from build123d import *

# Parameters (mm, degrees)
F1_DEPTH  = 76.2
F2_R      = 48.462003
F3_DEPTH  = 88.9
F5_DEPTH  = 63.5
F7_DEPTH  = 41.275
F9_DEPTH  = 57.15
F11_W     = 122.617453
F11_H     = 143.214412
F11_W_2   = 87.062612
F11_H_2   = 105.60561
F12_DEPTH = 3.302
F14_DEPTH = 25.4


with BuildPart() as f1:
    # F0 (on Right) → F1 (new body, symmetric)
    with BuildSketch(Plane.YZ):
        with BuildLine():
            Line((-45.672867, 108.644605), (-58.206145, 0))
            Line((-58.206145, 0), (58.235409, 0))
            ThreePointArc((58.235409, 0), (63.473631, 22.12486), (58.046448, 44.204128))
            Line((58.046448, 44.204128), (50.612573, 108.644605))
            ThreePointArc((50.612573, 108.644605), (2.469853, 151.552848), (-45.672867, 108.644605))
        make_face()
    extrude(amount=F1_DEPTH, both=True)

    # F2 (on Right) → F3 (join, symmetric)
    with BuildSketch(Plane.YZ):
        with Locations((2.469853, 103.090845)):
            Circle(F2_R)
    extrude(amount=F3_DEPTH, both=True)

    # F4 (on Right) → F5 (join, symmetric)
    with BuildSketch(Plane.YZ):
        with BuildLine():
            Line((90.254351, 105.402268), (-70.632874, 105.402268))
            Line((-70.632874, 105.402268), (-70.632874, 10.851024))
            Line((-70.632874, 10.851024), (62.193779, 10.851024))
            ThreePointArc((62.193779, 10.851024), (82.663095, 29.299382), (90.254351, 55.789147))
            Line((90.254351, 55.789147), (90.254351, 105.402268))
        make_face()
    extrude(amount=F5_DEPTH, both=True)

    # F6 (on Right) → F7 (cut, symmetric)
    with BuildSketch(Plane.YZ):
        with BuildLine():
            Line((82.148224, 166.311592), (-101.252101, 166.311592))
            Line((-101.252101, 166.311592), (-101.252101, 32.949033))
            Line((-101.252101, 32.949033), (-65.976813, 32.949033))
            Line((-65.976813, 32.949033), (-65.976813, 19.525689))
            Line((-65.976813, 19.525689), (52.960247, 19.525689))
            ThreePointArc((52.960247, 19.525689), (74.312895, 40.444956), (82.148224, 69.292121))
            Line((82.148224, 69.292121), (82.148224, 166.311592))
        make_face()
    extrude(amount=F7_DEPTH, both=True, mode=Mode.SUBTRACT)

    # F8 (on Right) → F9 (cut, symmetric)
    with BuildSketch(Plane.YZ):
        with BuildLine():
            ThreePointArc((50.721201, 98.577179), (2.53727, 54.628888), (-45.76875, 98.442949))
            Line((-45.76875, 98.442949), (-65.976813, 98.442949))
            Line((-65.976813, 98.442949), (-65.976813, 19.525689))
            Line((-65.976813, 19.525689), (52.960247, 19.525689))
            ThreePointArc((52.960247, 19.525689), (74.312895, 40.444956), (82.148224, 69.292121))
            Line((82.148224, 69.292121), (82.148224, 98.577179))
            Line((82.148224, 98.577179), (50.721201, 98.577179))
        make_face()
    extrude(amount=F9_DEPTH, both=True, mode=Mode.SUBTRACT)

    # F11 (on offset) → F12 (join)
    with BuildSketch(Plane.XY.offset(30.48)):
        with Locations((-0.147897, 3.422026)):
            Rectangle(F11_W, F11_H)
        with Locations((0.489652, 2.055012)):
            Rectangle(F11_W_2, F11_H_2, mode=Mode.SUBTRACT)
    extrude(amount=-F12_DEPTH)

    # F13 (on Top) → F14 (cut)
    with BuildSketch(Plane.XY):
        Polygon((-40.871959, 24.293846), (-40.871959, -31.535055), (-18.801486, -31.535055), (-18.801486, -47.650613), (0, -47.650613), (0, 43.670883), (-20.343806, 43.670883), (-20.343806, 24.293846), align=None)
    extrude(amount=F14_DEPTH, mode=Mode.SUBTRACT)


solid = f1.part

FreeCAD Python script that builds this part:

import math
import FreeCAD as App
import Part
import Sketcher
Q = App.Units.Quantity

doc = App.newDocument("Part")
body = doc.addObject("PartDesign::Body", "Body")

# Sketch on YZ plane
sketch1 = body.newObject("Sketcher::SketchObject", "Sketch")
sketch1.AttachmentSupport = (doc.getObject("YZ_Plane"), [""])
sketch1.MapMode = "FlatFace"
sketch1.addGeometry(Part.LineSegment(App.Vector(-45.672867, 108.644605, 0), App.Vector(-58.206145, 0, 0)), False)
sketch1.addGeometry(Part.LineSegment(App.Vector(-58.206145, 0, 0), App.Vector(58.235409, 0, 0)), False)
sketch1.addGeometry(Part.ArcOfCircle(Part.Circle(App.Vector(15.004872, 21.917669, 0), App.Vector(0, 0, 1), 48.469202), math.radians(-26.884783), math.radians(27.374629)), False)
sketch1.addGeometry(Part.LineSegment(App.Vector(58.046448, 44.204128, 0), App.Vector(50.612573, 108.644605, 0)), False)
sketch1.addGeometry(Part.ArcOfCircle(Part.Circle(App.Vector(2.469853, 103.090845, 0), App.Vector(0, 0, 1), 48.462003), math.radians(6.580571), math.radians(173.419429)), False)
sketch1.addConstraint(Sketcher.Constraint("Coincident", 0, 2, 1, 1))
sketch1.addConstraint(Sketcher.Constraint("Coincident", 1, 2, 2, 1))
sketch1.addConstraint(Sketcher.Constraint("Coincident", 2, 2, 3, 1))
sketch1.addConstraint(Sketcher.Constraint("Tangent", 3, 2, 4, 1))
sketch1.addConstraint(Sketcher.Constraint("Tangent", 4, 2, 0, 1))
sketch1.addConstraint(Sketcher.Constraint("Horizontal", 1))
sketch1.addConstraint(Sketcher.Constraint("PointOnObject", 0, 2, -1))
sketch1.addConstraint(Sketcher.Constraint("Horizontal", 3, 2, 4, 2))
sketch1.addConstraint(Sketcher.Constraint("Radius", 2, Q("48.469202 mm")))
sketch1.addConstraint(Sketcher.Constraint("Radius", 4, Q("48.462003 mm")))
sketch1.addConstraint(Sketcher.Constraint("DistanceX", 2, 3, 3, 2, Q("35.607701 mm")))
sketch1.addConstraint(Sketcher.Constraint("DistanceX", 1, 1, 1, 2, Q("116.441554 mm")))
sketch1.addConstraint(Sketcher.Constraint("DistanceX", -1, 1, 2, 3, Q("15.004872 mm")))
sketch1.addConstraint(Sketcher.Constraint("DistanceY", -1, 1, 2, 3, Q("21.917669 mm")))
sketch1.addConstraint(Sketcher.Constraint("DistanceX", 4, 3, 2, 3, Q("12.535019 mm")))
pad1 = body.newObject("PartDesign::Pad", "Pad")
pad1.Profile = sketch1
pad1.Length = Q("6 in")
pad1.Midplane = True

# Sketch on YZ plane
sketch2 = body.newObject("Sketcher::SketchObject", "Sketch001")
sketch2.AttachmentSupport = (doc.getObject("YZ_Plane"), [""])
sketch2.MapMode = "FlatFace"
sketch2.addGeometry(Part.Circle(App.Vector(2.469853, 103.090845, 0), App.Vector(0, 0, 1), 48.462003), False)
sketch2.addConstraint(Sketcher.Constraint("Diameter", 0, Q("96.924006 mm")))
sketch2.addConstraint(Sketcher.Constraint("DistanceX", -1, 1, 0, 3, Q("2.469853 mm")))
sketch2.addConstraint(Sketcher.Constraint("DistanceY", -1, 1, 0, 3, Q("103.090845 mm")))
pad2 = body.newObject("PartDesign::Pad", "Pad001")
pad2.Profile = sketch2
pad2.Length = Q("7 in")
pad2.Midplane = True

# Sketch on YZ plane
sketch3 = body.newObject("Sketcher::SketchObject", "Sketch002")
sketch3.AttachmentSupport = (doc.getObject("YZ_Plane"), [""])
sketch3.MapMode = "FlatFace"
sketch3.addGeometry(Part.LineSegment(App.Vector(90.254351, 105.402268, 0), App.Vector(-70.632874, 105.402268, 0)), False)
sketch3.addGeometry(Part.LineSegment(App.Vector(-70.632874, 105.402268, 0), App.Vector(-70.632874, 10.851024, 0)), False)
sketch3.addGeometry(Part.LineSegment(App.Vector(-70.632874, 10.851024, 0), App.Vector(62.193779, 10.851024, 0)), False)
sketch3.addGeometry(Part.ArcOfCircle(Part.Circle(App.Vector(40.240569, 55.789147, 0), App.Vector(0, 0, 1), 50.013782), math.radians(-63.963527), math.radians(0)), False)
sketch3.addGeometry(Part.LineSegment(App.Vector(90.254351, 55.789147, 0), App.Vector(90.254351, 105.402268, 0)), False)
sketch3.addConstraint(Sketcher.Constraint("Coincident", 0, 2, 1, 1))
sketch3.addConstraint(Sketcher.Constraint("Coincident", 1, 2, 2, 1))
sketch3.addConstraint(Sketcher.Constraint("Coincident", 2, 2, 3, 1))
sketch3.addConstraint(Sketcher.Constraint("Tangent", 3, 2, 4, 1))
sketch3.addConstraint(Sketcher.Constraint("Coincident", 4, 2, 0, 1))
sketch3.addConstraint(Sketcher.Constraint("Horizontal", 0))
sketch3.addConstraint(Sketcher.Constraint("Vertical", 1))
sketch3.addConstraint(Sketcher.Constraint("Horizontal", 2))
sketch3.addConstraint(Sketcher.Constraint("Vertical", 4))
sketch3.addConstraint(Sketcher.Constraint("Radius", 3, Q("50.013782 mm")))
sketch3.addConstraint(Sketcher.Constraint("DistanceY", 4, 1, 4, 2, Q("49.613121 mm")))
sketch3.addConstraint(Sketcher.Constraint("DistanceX", 0, 2, 0, 1, Q("160.887225 mm")))
sketch3.addConstraint(Sketcher.Constraint("DistanceX", 2, 1, 2, 2, Q("132.826653 mm")))
sketch3.addConstraint(Sketcher.Constraint("DistanceX", -1, 1, 3, 3, Q("40.240569 mm")))
sketch3.addConstraint(Sketcher.Constraint("DistanceY", -1, 1, 0, 2, Q("105.402268 mm")))
pad3 = body.newObject("PartDesign::Pad", "Pad002")
pad3.Profile = sketch3
pad3.Length = Q("5 in")
pad3.Midplane = True

# Sketch on YZ plane
sketch4 = body.newObject("Sketcher::SketchObject", "Sketch003")
sketch4.AttachmentSupport = (doc.getObject("YZ_Plane"), [""])
sketch4.MapMode = "FlatFace"
sketch4.addGeometry(Part.LineSegment(App.Vector(82.148224, 166.311592, 0), App.Vector(-101.252101, 166.311592, 0)), False)
sketch4.addGeometry(Part.LineSegment(App.Vector(-101.252101, 166.311592, 0), App.Vector(-101.252101, 32.949033, 0)), False)
sketch4.addGeometry(Part.LineSegment(App.Vector(-101.252101, 32.949033, 0), App.Vector(-65.976813, 32.949033, 0)), False)
sketch4.addGeometry(Part.LineSegment(App.Vector(-65.976813, 32.949033, 0), App.Vector(-65.976813, 19.525689, 0)), False)
sketch4.addGeometry(Part.LineSegment(App.Vector(-65.976813, 19.525689, 0), App.Vector(52.960247, 19.525689, 0)), False)
sketch4.addGeometry(Part.ArcOfCircle(Part.Circle(App.Vector(25.127556, 69.292122, 0), App.Vector(0, 0, 1), 57.020668), math.radians(-60.783184), math.radians(-0.000001)), False)
sketch4.addGeometry(Part.LineSegment(App.Vector(82.148224, 69.292121, 0), App.Vector(82.148224, 166.311592, 0)), False)
sketch4.addConstraint(Sketcher.Constraint("Coincident", 0, 2, 1, 1))
sketch4.addConstraint(Sketcher.Constraint("Coincident", 1, 2, 2, 1))
sketch4.addConstraint(Sketcher.Constraint("Coincident", 2, 2, 3, 1))
sketch4.addConstraint(Sketcher.Constraint("Coincident", 3, 2, 4, 1))
sketch4.addConstraint(Sketcher.Constraint("Coincident", 4, 2, 5, 1))
sketch4.addConstraint(Sketcher.Constraint("Tangent", 5, 2, 6, 1))
sketch4.addConstraint(Sketcher.Constraint("Coincident", 6, 2, 0, 1))
sketch4.addConstraint(Sketcher.Constraint("Horizontal", 0))
sketch4.addConstraint(Sketcher.Constraint("Vertical", 1))
sketch4.addConstraint(Sketcher.Constraint("Horizontal", 2))
sketch4.addConstraint(Sketcher.Constraint("Vertical", 3))
sketch4.addConstraint(Sketcher.Constraint("Horizontal", 4))
sketch4.addConstraint(Sketcher.Constraint("Vertical", 6))
sketch4.addConstraint(Sketcher.Constraint("Radius", 5, Q("57.020668 mm")))
sketch4.addConstraint(Sketcher.Constraint("DistanceX", 4, 1, 4, 2, Q("118.93706 mm")))
sketch4.addConstraint(Sketcher.Constraint("DistanceY", 1, 2, 1, 1, Q("133.362559 mm")))
sketch4.addConstraint(Sketcher.Constraint("DistanceY", 6, 1, 6, 2, Q("97.019471 mm")))
sketch4.addConstraint(Sketcher.Constraint("DistanceX", 0, 2, -1, 1, Q("101.252101 mm")))
sketch4.addConstraint(Sketcher.Constraint("DistanceX", 0, 2, 0, 1, Q("183.400325 mm")))
sketch4.addConstraint(Sketcher.Constraint("DistanceX", 2, 1, 2, 2, Q("35.275288 mm")))
sketch4.addConstraint(Sketcher.Constraint("DistanceY", -1, 1, 0, 2, Q("166.311592 mm")))
pocket1 = body.newObject("PartDesign::Pocket", "Pocket")
pocket1.Profile = sketch4
pocket1.Length = Q("3.25 in")
pocket1.Midplane = True

# Sketch on YZ plane
sketch5 = body.newObject("Sketcher::SketchObject", "Sketch004")
sketch5.AttachmentSupport = (doc.getObject("YZ_Plane"), [""])
sketch5.MapMode = "FlatFace"
sketch5.addGeometry(Part.ArcOfCircle(Part.Circle(App.Vector(2.469853, 103.090844, 0), App.Vector(0, 0, 1), 48.462003), math.radians(-174.496415), math.radians(-5.344173)), False)
sketch5.addGeometry(Part.LineSegment(App.Vector(-45.76875, 98.442949, 0), App.Vector(-65.976813, 98.442949, 0)), False)
sketch5.addGeometry(Part.LineSegment(App.Vector(-65.976813, 98.442949, 0), App.Vector(-65.976813, 19.525689, 0)), False)
sketch5.addGeometry(Part.LineSegment(App.Vector(-65.976813, 19.525689, 0), App.Vector(52.960247, 19.525689, 0)), False)
sketch5.addGeometry(Part.ArcOfCircle(Part.Circle(App.Vector(25.127556, 69.292122, 0), App.Vector(0, 0, 1), 57.020668), math.radians(-60.783184), math.radians(-0.000001)), False)
sketch5.addGeometry(Part.LineSegment(App.Vector(82.148224, 69.292121, 0), App.Vector(82.148224, 98.577179, 0)), False)
sketch5.addGeometry(Part.LineSegment(App.Vector(82.148224, 98.577179, 0), App.Vector(50.721201, 98.577179, 0)), False)
sketch5.addConstraint(Sketcher.Constraint("Coincident", 0, 1, 1, 1))
sketch5.addConstraint(Sketcher.Constraint("Coincident", 1, 2, 2, 1))
sketch5.addConstraint(Sketcher.Constraint("Coincident", 2, 2, 3, 1))
sketch5.addConstraint(Sketcher.Constraint("Coincident", 3, 2, 4, 1))
sketch5.addConstraint(Sketcher.Constraint("Tangent", 4, 2, 5, 1))
sketch5.addConstraint(Sketcher.Constraint("Coincident", 5, 2, 6, 1))
sketch5.addConstraint(Sketcher.Constraint("Coincident", 6, 2, 0, 2))
sketch5.addConstraint(Sketcher.Constraint("Horizontal", 1))
sketch5.addConstraint(Sketcher.Constraint("Vertical", 2))
sketch5.addConstraint(Sketcher.Constraint("Horizontal", 3))
sketch5.addConstraint(Sketcher.Constraint("Vertical", 5))
sketch5.addConstraint(Sketcher.Constraint("Horizontal", 6))
sketch5.addConstraint(Sketcher.Constraint("Radius", 0, Q("48.462003 mm")))
sketch5.addConstraint(Sketcher.Constraint("Radius", 4, Q("57.020668 mm")))
sketch5.addConstraint(Sketcher.Constraint("DistanceX", 3, 1, 3, 2, Q("118.93706 mm")))
sketch5.addConstraint(Sketcher.Constraint("DistanceY", 2, 2, 2, 1, Q("78.91726 mm")))
sketch5.addConstraint(Sketcher.Constraint("DistanceY", 5, 1, 5, 2, Q("29.285058 mm")))
sketch5.addConstraint(Sketcher.Constraint("DistanceX", -1, 1, 6, 2, Q("50.721201 mm")))
sketch5.addConstraint(Sketcher.Constraint("DistanceX", 1, 2, 1, 1, Q("20.208063 mm")))
sketch5.addConstraint(Sketcher.Constraint("DistanceX", 6, 2, 6, 1, Q("31.427023 mm")))
sketch5.addConstraint(Sketcher.Constraint("DistanceX", 0, 1, -1, 1, Q("45.76875 mm")))
sketch5.addConstraint(Sketcher.Constraint("DistanceY", -1, 1, 0, 1, Q("98.442949 mm")))
pocket2 = body.newObject("PartDesign::Pocket", "Pocket001")
pocket2.Profile = sketch5
pocket2.Length = Q("4.5 in")
pocket2.Midplane = True

# Sketch on XY plane
sketch6 = body.newObject("Sketcher::SketchObject", "Sketch005")
sketch6.AttachmentSupport = (doc.getObject("XY_Plane"), [""])
sketch6.MapMode = "FlatFace"
sketch6.AttachmentOffset = App.Placement(App.Vector(0, 0, 1.2 * 25.4), App.Rotation())
sketch6.addGeometry(Part.LineSegment(App.Vector(-61.456623, 75.029232, 0), App.Vector(-61.456623, -68.18518, 0)), False)
sketch6.addGeometry(Part.LineSegment(App.Vector(-61.456623, -68.18518, 0), App.Vector(61.160829, -68.18518, 0)), False)
sketch6.addGeometry(Part.LineSegment(App.Vector(61.160829, -68.18518, 0), App.Vector(61.160829, 75.029232, 0)), False)
sketch6.addGeometry(Part.LineSegment(App.Vector(61.160829, 75.029232, 0), App.Vector(-61.456623, 75.029232, 0)), False)
sketch6.addGeometry(Part.LineSegment(App.Vector(44.020958, -50.747793, 0), App.Vector(-43.041654, -50.747793, 0)), False)
sketch6.addGeometry(Part.LineSegment(App.Vector(-43.041654, -50.747793, 0), App.Vector(-43.041654, 54.857817, 0)), False)
sketch6.addGeometry(Part.LineSegment(App.Vector(-43.041654, 54.857817, 0), App.Vector(44.020958, 54.857817, 0)), False)
sketch6.addGeometry(Part.LineSegment(App.Vector(44.020958, 54.857817, 0), App.Vector(44.020958, -50.747793, 0)), False)
sketch6.addConstraint(Sketcher.Constraint("Coincident", 0, 2, 1, 1))
sketch6.addConstraint(Sketcher.Constraint("Coincident", 1, 2, 2, 1))
sketch6.addConstraint(Sketcher.Constraint("Coincident", 2, 2, 3, 1))
sketch6.addConstraint(Sketcher.Constraint("Coincident", 3, 2, 0, 1))
sketch6.addConstraint(Sketcher.Constraint("Coincident", 4, 2, 5, 1))
sketch6.addConstraint(Sketcher.Constraint("Coincident", 5, 2, 6, 1))
sketch6.addConstraint(Sketcher.Constraint("Coincident", 6, 2, 7, 1))
sketch6.addConstraint(Sketcher.Constraint("Coincident", 7, 2, 4, 1))
sketch6.addConstraint(Sketcher.Constraint("Vertical", 0))
sketch6.addConstraint(Sketcher.Constraint("Horizontal", 1))
sketch6.addConstraint(Sketcher.Constraint("Vertical", 2))
sketch6.addConstraint(Sketcher.Constraint("Horizontal", 3))
sketch6.addConstraint(Sketcher.Constraint("Horizontal", 4))
sketch6.addConstraint(Sketcher.Constraint("Vertical", 5))
sketch6.addConstraint(Sketcher.Constraint("Horizontal", 6))
sketch6.addConstraint(Sketcher.Constraint("Vertical", 7))
sketch6.addConstraint(Sketcher.Constraint("DistanceX", 4, 2, 4, 1, Q("87.062612 mm")))
sketch6.addConstraint(Sketcher.Constraint("DistanceY", 0, 2, 0, 1, Q("143.214412 mm")))
sketch6.addConstraint(Sketcher.Constraint("DistanceY", 5, 1, 5, 2, Q("105.60561 mm")))
sketch6.addConstraint(Sketcher.Constraint("DistanceX", 1, 1, 1, 2, Q("122.617453 mm")))
sketch6.addConstraint(Sketcher.Constraint("DistanceY", 0, 2, -1, 1, Q("68.18518 mm")))
sketch6.addConstraint(Sketcher.Constraint("DistanceX", -1, 1, 1, 2, Q("61.160829 mm")))
sketch6.addConstraint(Sketcher.Constraint("DistanceX", 0, 2, 4, 2, Q("18.414969 mm")))
sketch6.addConstraint(Sketcher.Constraint("DistanceY", 4, 2, -1, 1, Q("50.747793 mm")))
pad4 = body.newObject("PartDesign::Pad", "Pad003")
pad4.Profile = sketch6
pad4.Length = Q("0.13 in")
pad4.Reversed = True

# Sketch on XY plane
sketch7 = body.newObject("Sketcher::SketchObject", "Sketch006")
sketch7.AttachmentSupport = (doc.getObject("XY_Plane"), [""])
sketch7.MapMode = "FlatFace"
sketch7.addGeometry(Part.LineSegment(App.Vector(-40.871959, 24.293846, 0), App.Vector(-40.871959, -31.535055, 0)), False)
sketch7.addGeometry(Part.LineSegment(App.Vector(-40.871959, -31.535055, 0), App.Vector(-18.801486, -31.535055, 0)), False)
sketch7.addGeometry(Part.LineSegment(App.Vector(-18.801486, -31.535055, 0), App.Vector(-18.801486, -47.650613, 0)), False)
sketch7.addGeometry(Part.LineSegment(App.Vector(-18.801486, -47.650613, 0), App.Vector(0, -47.650613, 0)), False)
sketch7.addGeometry(Part.LineSegment(App.Vector(0, -47.650613, 0), App.Vector(0, 43.670883, 0)), False)
sketch7.addGeometry(Part.LineSegment(App.Vector(0, 43.670883, 0), App.Vector(-20.343806, 43.670883, 0)), False)
sketch7.addGeometry(Part.LineSegment(App.Vector(-20.343806, 43.670883, 0), App.Vector(-20.343806, 24.293846, 0)), False)
sketch7.addGeometry(Part.LineSegment(App.Vector(-20.343806, 24.293846, 0), App.Vector(-40.871959, 24.293846, 0)), False)
sketch7.addConstraint(Sketcher.Constraint("Coincident", 0, 2, 1, 1))
sketch7.addConstraint(Sketcher.Constraint("Coincident", 1, 2, 2, 1))
sketch7.addConstraint(Sketcher.Constraint("Coincident", 2, 2, 3, 1))
sketch7.addConstraint(Sketcher.Constraint("Coincident", 3, 2, 4, 1))
sketch7.addConstraint(Sketcher.Constraint("Coincident", 4, 2, 5, 1))
sketch7.addConstraint(Sketcher.Constraint("Coincident", 5, 2, 6, 1))
sketch7.addConstraint(Sketcher.Constraint("Coincident", 6, 2, 7, 1))
sketch7.addConstraint(Sketcher.Constraint("Coincident", 7, 2, 0, 1))
sketch7.addConstraint(Sketcher.Constraint("Vertical", 0))
sketch7.addConstraint(Sketcher.Constraint("Horizontal", 1))
sketch7.addConstraint(Sketcher.Constraint("Vertical", 2))
sketch7.addConstraint(Sketcher.Constraint("Horizontal", 3))
sketch7.addConstraint(Sketcher.Constraint("Vertical", 4))
sketch7.addConstraint(Sketcher.Constraint("Horizontal", 5))
sketch7.addConstraint(Sketcher.Constraint("Vertical", 6))
sketch7.addConstraint(Sketcher.Constraint("Horizontal", 7))
sketch7.addConstraint(Sketcher.Constraint("PointOnObject", 3, 2, -2))
sketch7.addConstraint(Sketcher.Constraint("DistanceY", 0, 2, 0, 1, Q("55.828901 mm")))
sketch7.addConstraint(Sketcher.Constraint("DistanceY", 2, 2, 2, 1, Q("16.115558 mm")))
sketch7.addConstraint(Sketcher.Constraint("DistanceX", 1, 1, 1, 2, Q("22.070473 mm")))
sketch7.addConstraint(Sketcher.Constraint("DistanceX", 3, 1, 3, 2, Q("18.801486 mm")))
sketch7.addConstraint(Sketcher.Constraint("DistanceX", 5, 2, 5, 1, Q("20.343806 mm")))
sketch7.addConstraint(Sketcher.Constraint("DistanceY", 4, 1, 4, 2, Q("91.321496 mm")))
sketch7.addConstraint(Sketcher.Constraint("DistanceY", 0, 2, -1, 1, Q("31.535055 mm")))
pocket3 = body.newObject("PartDesign::Pocket", "Pocket002")
pocket3.Profile = sketch7
pocket3.Length = Q("1 in")
pocket3.Reversed = True

doc.recompute()
